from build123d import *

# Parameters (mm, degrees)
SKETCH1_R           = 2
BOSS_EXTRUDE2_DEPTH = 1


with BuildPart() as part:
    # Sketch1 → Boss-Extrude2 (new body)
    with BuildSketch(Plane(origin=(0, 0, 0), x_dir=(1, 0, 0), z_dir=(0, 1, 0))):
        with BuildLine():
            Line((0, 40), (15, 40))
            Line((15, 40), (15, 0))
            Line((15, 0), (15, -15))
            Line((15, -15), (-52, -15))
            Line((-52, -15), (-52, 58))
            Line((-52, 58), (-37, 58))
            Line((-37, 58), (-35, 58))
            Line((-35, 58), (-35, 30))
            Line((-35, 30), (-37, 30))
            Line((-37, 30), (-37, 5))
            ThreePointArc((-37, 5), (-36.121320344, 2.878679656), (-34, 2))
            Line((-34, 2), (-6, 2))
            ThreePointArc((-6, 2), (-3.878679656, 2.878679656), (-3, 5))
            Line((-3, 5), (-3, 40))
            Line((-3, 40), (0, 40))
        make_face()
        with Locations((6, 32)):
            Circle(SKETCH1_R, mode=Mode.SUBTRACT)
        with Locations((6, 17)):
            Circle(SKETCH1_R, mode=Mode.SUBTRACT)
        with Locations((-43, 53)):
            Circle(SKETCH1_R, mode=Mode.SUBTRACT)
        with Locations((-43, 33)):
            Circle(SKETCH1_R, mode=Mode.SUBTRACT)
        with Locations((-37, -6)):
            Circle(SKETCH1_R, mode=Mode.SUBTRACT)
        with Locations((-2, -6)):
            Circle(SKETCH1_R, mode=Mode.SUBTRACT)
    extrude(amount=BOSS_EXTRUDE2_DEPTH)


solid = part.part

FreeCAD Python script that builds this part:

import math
import FreeCAD as App
import Part
import Sketcher
from FreeCAD import Vector

doc = App.newDocument("Part")
params = doc.addObject("Spreadsheet::Sheet", "Params")
for row, (alias, value) in enumerate([
    ("sketch1_diameter", "4 mm"),
    ("sketch1_radius", "3 mm"),
    ("sketch1_width", "18 mm"),
    ("sketch1_width2", "28 mm"),
    ("sketch1_width3", "2 mm"),
    ("pad1_length", "1 mm"),
], start=1):
    params.set(f"A{row}", alias)
    params.set(f"B{row}", "=" + value)
    params.setAlias(f"B{row}", alias)

body = doc.addObject("PartDesign::Body", "Body")

sketch1 = body.newObject("Sketcher::SketchObject", "Sketch")
sketch1.AttachmentSupport = (doc.getObject("XZ_Plane"), [""])
sketch1.MapMode = "FlatFace"
sketch1.addGeometry(Part.LineSegment(Vector(15, 15, 0), Vector(15, -40, 0)), False)
sketch1.addGeometry(Part.LineSegment(Vector(15, -40, 0), Vector(-3, -40, 0)), False)
sketch1.addGeometry(Part.LineSegment(Vector(-3, -40, 0), Vector(-3, -5, 0)), False)
sketch1.addGeometry(Part.ArcOfCircle(Part.Circle(Vector(-6, -5, 0), Vector(0, 0, 1), 3), math.radians(0), math.radians(90)), False)
sketch1.addGeometry(Part.LineSegment(Vector(-6, -2, 0), Vector(-34, -2, 0)), False)
sketch1.addGeometry(Part.ArcOfCircle(Part.Circle(Vector(-34, -5, 0), Vector(0, 0, 1), 3), math.radians(90), math.radians(180)), False)
sketch1.addGeometry(Part.LineSegment(Vector(-37, -5, 0), Vector(-37, -30, 0)), False)
sketch1.addGeometry(Part.LineSegment(Vector(-37, -30, 0), Vector(-35, -30, 0)), False)
sketch1.addGeometry(Part.LineSegment(Vector(-35, -30, 0), Vector(-35, -58, 0)), False)
sketch1.addGeometry(Part.LineSegment(Vector(-35, -58, 0), Vector(-52, -58, 0)), False)
sketch1.addGeometry(Part.LineSegment(Vector(-52, -58, 0), Vector(-52, 15, 0)), False)
sketch1.addGeometry(Part.LineSegment(Vector(-52, 15, 0), Vector(15, 15, 0)), False)
sketch1.addGeometry(Part.Circle(Vector(-2, 6, 0), Vector(0, 0, 1), 2), False)
sketch1.addGeometry(Part.Circle(Vector(6, -17, 0), Vector(0, 0, 1), 2), False)
sketch1.addGeometry(Part.Circle(Vector(-37, 6, 0), Vector(0, 0, 1), 2), False)
sketch1.addGeometry(Part.Circle(Vector(6, -32, 0), Vector(0, 0, 1), 2), False)
sketch1.addGeometry(Part.Circle(Vector(-43, -33, 0), Vector(0, 0, 1), 2), False)
sketch1.addGeometry(Part.Circle(Vector(-43, -53, 0), Vector(0, 0, 1), 2), False)
sketch1.addConstraint(Sketcher.Constraint("Coincident", 0, 2, 1, 1))
sketch1.addConstraint(Sketcher.Constraint("Coincident", 1, 2, 2, 1))
sketch1.addConstraint(Sketcher.Constraint("Tangent", 2, 2, 3, 1))
sketch1.addConstraint(Sketcher.Constraint("Tangent", 3, 2, 4, 1))
sketch1.addConstraint(Sketcher.Constraint("Tangent", 4, 2, 5, 1))
sketch1.addConstraint(Sketcher.Constraint("Tangent", 5, 2, 6, 1))
sketch1.addConstraint(Sketcher.Constraint("Coincident", 6, 2, 7, 1))
sketch1.addConstraint(Sketcher.Constraint("Coincident", 7, 2, 8, 1))
sketch1.addConstraint(Sketcher.Constraint("Coincident", 8, 2, 9, 1))
sketch1.addConstraint(Sketcher.Constraint("Coincident", 9, 2, 10, 1))
sketch1.addConstraint(Sketcher.Constraint("Coincident", 10, 2, 11, 1))
sketch1.addConstraint(Sketcher.Constraint("Coincident", 11, 2, 0, 1))
sketch1.addConstraint(Sketcher.Constraint("Vertical", 0))
sketch1.addConstraint(Sketcher.Constraint("Horizontal", 1))
sketch1.addConstraint(Sketcher.Constraint("Vertical", 2))
sketch1.addConstraint(Sketcher.Constraint("Horizontal", 4))
sketch1.addConstraint(Sketcher.Constraint("Vertical", 6))
sketch1.addConstraint(Sketcher.Constraint("Horizontal", 7))
sketch1.addConstraint(Sketcher.Constraint("Vertical", 8))
sketch1.addConstraint(Sketcher.Constraint("Horizontal", 9))
sketch1.addConstraint(Sketcher.Constraint("Vertical", 10))
sketch1.addConstraint(Sketcher.Constraint("Horizontal", 11))
sketch1.addConstraint(Sketcher.Constraint("Equal", 3, 5))
sketch1.addConstraint(Sketcher.Constraint("Equal", 12, 13))
sketch1.addConstraint(Sketcher.Constraint("Equal", 13, 14))
sketch1.addConstraint(Sketcher.Constraint("Equal", 14, 15))
sketch1.addConstraint(Sketcher.Constraint("Equal", 15, 16))
sketch1.addConstraint(Sketcher.Constraint("Equal", 16, 17))
sketch1.addConstraint(Sketcher.Constraint("Horizontal", 12, 3, 14, 3))
sketch1.addConstraint(Sketcher.Constraint("Vertical", 13, 3, 15, 3))
sketch1.addConstraint(Sketcher.Constraint("Vertical", 16, 3, 17, 3))
sketch1.addConstraint(Sketcher.Constraint("Vertical", 14, 3, 5, 2))
sketch1.addConstraint(Sketcher.Constraint("Equal", 4, 8))
sketch1.addConstraint(Sketcher.Constraint("Diameter", 12, 4.0))
sketch1.addConstraint(Sketcher.Constraint("Radius", 3, 3.0))
sketch1.addConstraint(Sketcher.Constraint("DistanceX", 1, 2, 1, 1, 18.0))
sketch1.addConstraint(Sketcher.Constraint("DistanceX", 4, 2, 4, 1, 28.0))
sketch1.addConstraint(Sketcher.Constraint("DistanceX", 7, 1, 7, 2, 2.0))
sketch1.addConstraint(Sketcher.Constraint("DistanceX", 9, 2, 9, 1, 17.0))
sketch1.addConstraint(Sketcher.Constraint("DistanceY", 0, 2, 0, 1, 55.0))
sketch1.addConstraint(Sketcher.Constraint("DistanceY", 2, 1, 2, 2, 35.0))
sketch1.addConstraint(Sketcher.Constraint("DistanceY", 6, 2, 6, 1, 25.0))
sketch1.addConstraint(Sketcher.Constraint("DistanceX", 3, 3, -1, 1, 6.0))
sketch1.addConstraint(Sketcher.Constraint("DistanceY", 3, 3, -1, 1, 5.0))
sketch1.addConstraint(Sketcher.Constraint("DistanceX", 12, 3, -1, 1, 2.0))
sketch1.addConstraint(Sketcher.Constraint("DistanceY", -1, 1, 12, 3, 6.0))
sketch1.addConstraint(Sketcher.Constraint("DistanceX", -1, 1, 13, 3, 6.0))
sketch1.addConstraint(Sketcher.Constraint("DistanceY", 13, 3, -1, 1, 17.0))
sketch1.addConstraint(Sketcher.Constraint("DistanceY", 15, 3, -1, 1, 32.0))
sketch1.addConstraint(Sketcher.Constraint("DistanceX", 16, 3, -1, 1, 43.0))
sketch1.addConstraint(Sketcher.Constraint("DistanceY", 16, 3, -1, 1, 33.0))
sketch1.addConstraint(Sketcher.Constraint("DistanceY", 17, 3, -1, 1, 53.0))
sketch1.setExpression("Constraints[33]", "Params.sketch1_diameter")
sketch1.setExpression("Constraints[34]", "Params.sketch1_radius")
sketch1.setExpression("Constraints[35]", "Params.sketch1_width")
sketch1.setExpression("Constraints[36]", "Params.sketch1_width2")
sketch1.setExpression("Constraints[37]", "Params.sketch1_width3")
pad1 = body.newObject("PartDesign::Pad", "Pad")
pad1.Profile = sketch1
pad1.setExpression("Length", "Params.pad1_length")
pad1.Reversed = True

doc.recompute()
